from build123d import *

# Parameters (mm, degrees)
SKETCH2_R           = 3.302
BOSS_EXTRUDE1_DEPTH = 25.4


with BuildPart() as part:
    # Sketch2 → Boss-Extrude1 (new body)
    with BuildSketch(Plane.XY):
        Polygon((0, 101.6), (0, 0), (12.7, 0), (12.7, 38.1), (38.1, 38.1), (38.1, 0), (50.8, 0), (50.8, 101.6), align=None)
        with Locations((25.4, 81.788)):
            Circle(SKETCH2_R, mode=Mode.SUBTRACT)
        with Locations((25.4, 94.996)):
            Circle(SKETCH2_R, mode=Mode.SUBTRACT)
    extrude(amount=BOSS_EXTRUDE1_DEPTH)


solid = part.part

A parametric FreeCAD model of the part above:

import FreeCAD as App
import Part
import Sketcher
from FreeCAD import Vector
Q = App.Units.Quantity

doc = App.newDocument("Part")
body = doc.addObject("PartDesign::Body", "Body")

sketch1 = body.newObject("Sketcher::SketchObject", "Sketch")
sketch1.AttachmentSupport = (doc.getObject("XY_Plane"), [""])
sketch1.MapMode = "FlatFace"
sketch1.addGeometry(Part.LineSegment(Vector(0, 101.6, 0), Vector(0, 0, 0)), False)
sketch1.addGeometry(Part.LineSegment(Vector(0, 0, 0), Vector(12.7, 0, 0)), False)
sketch1.addGeometry(Part.LineSegment(Vector(12.7, 0, 0), Vector(12.7, 38.1, 0)), False)
sketch1.addGeometry(Part.LineSegment(Vector(12.7, 38.1, 0), Vector(38.1, 38.1, 0)), False)
sketch1.addGeometry(Part.LineSegment(Vector(38.1, 38.1, 0), Vector(38.1, 0, 0)), False)
sketch1.addGeometry(Part.LineSegment(Vector(38.1, 0, 0), Vector(50.8, 0, 0)), False)
sketch1.addGeometry(Part.LineSegment(Vector(50.8, 0, 0), Vector(50.8, 101.6, 0)), False)
sketch1.addGeometry(Part.LineSegment(Vector(50.8, 101.6, 0), Vector(0, 101.6, 0)), False)
sketch1.addGeometry(Part.Circle(Vector(25.4, 81.8, 0), Vector(0, 0, 1), 3.3), False)
sketch1.addGeometry(Part.Circle(Vector(25.4, 95, 0), Vector(0, 0, 1), 3.3), False)
sketch1.addConstraint(Sketcher.Constraint("Coincident", 0, 2, 1, 1))
sketch1.addConstraint(Sketcher.Constraint("Coincident", 1, 2, 2, 1))
sketch1.addConstraint(Sketcher.Constraint("Coincident", 2, 2, 3, 1))
sketch1.addConstraint(Sketcher.Constraint("Coincident", 3, 2, 4, 1))
sketch1.addConstraint(Sketcher.Constraint("Coincident", 4, 2, 5, 1))
sketch1.addConstraint(Sketcher.Constraint("Coincident", 5, 2, 6, 1))
sketch1.addConstraint(Sketcher.Constraint("Coincident", 6, 2, 7, 1))
sketch1.addConstraint(Sketcher.Constraint("Coincident", 7, 2, 0, 1))
sketch1.addConstraint(Sketcher.Constraint("Vertical", 0))
sketch1.addConstraint(Sketcher.Constraint("Horizontal", 1))
sketch1.addConstraint(Sketcher.Constraint("Vertical", 2))
sketch1.addConstraint(Sketcher.Constraint("Horizontal", 3))
sketch1.addConstraint(Sketcher.Constraint("Vertical", 4))
sketch1.addConstraint(Sketcher.Constraint("Horizontal", 5))
sketch1.addConstraint(Sketcher.Constraint("Vertical", 6))
sketch1.addConstraint(Sketcher.Constraint("Horizontal", 7))
sketch1.addConstraint(Sketcher.Constraint("Coincident", 0, 2, -1, 1))
sketch1.addConstraint(Sketcher.Constraint("Equal", 8, 9))
sketch1.addConstraint(Sketcher.Constraint("PointOnObject", 4, 2, -1))
sketch1.addConstraint(Sketcher.Constraint("Vertical", 8, 3, 9, 3))
sketch1.addConstraint(Sketcher.Constraint("Equal", 1, 5))
sketch1.addConstraint(Sketcher.Constraint("Diameter", 8, Q("0.26 in")))
sketch1.addConstraint(Sketcher.Constraint("DistanceX", 3, 1, 3, 2, Q("1 in")))
sketch1.addConstraint(Sketcher.Constraint("DistanceX", 7, 2, 7, 1, Q("2 in")))
sketch1.addConstraint(Sketcher.Constraint("DistanceY", 0, 2, 0, 1, Q("4 in")))
sketch1.addConstraint(Sketcher.Constraint("DistanceY", 2, 1, 2, 2, Q("1.5 in")))
sketch1.addConstraint(Sketcher.Constraint("DistanceX", -1, 1, 8, 3, Q("1 in")))
sketch1.addConstraint(Sketcher.Constraint("DistanceY", -1, 1, 8, 3, Q("3.22 in")))
sketch1.addConstraint(Sketcher.Constraint("DistanceY", -1, 1, 9, 3, Q("3.74 in")))
pad1 = body.newObject("PartDesign::Pad", "Pad")
pad1.Profile = sketch1
pad1.Length = Q("1 in")

doc.recompute()
